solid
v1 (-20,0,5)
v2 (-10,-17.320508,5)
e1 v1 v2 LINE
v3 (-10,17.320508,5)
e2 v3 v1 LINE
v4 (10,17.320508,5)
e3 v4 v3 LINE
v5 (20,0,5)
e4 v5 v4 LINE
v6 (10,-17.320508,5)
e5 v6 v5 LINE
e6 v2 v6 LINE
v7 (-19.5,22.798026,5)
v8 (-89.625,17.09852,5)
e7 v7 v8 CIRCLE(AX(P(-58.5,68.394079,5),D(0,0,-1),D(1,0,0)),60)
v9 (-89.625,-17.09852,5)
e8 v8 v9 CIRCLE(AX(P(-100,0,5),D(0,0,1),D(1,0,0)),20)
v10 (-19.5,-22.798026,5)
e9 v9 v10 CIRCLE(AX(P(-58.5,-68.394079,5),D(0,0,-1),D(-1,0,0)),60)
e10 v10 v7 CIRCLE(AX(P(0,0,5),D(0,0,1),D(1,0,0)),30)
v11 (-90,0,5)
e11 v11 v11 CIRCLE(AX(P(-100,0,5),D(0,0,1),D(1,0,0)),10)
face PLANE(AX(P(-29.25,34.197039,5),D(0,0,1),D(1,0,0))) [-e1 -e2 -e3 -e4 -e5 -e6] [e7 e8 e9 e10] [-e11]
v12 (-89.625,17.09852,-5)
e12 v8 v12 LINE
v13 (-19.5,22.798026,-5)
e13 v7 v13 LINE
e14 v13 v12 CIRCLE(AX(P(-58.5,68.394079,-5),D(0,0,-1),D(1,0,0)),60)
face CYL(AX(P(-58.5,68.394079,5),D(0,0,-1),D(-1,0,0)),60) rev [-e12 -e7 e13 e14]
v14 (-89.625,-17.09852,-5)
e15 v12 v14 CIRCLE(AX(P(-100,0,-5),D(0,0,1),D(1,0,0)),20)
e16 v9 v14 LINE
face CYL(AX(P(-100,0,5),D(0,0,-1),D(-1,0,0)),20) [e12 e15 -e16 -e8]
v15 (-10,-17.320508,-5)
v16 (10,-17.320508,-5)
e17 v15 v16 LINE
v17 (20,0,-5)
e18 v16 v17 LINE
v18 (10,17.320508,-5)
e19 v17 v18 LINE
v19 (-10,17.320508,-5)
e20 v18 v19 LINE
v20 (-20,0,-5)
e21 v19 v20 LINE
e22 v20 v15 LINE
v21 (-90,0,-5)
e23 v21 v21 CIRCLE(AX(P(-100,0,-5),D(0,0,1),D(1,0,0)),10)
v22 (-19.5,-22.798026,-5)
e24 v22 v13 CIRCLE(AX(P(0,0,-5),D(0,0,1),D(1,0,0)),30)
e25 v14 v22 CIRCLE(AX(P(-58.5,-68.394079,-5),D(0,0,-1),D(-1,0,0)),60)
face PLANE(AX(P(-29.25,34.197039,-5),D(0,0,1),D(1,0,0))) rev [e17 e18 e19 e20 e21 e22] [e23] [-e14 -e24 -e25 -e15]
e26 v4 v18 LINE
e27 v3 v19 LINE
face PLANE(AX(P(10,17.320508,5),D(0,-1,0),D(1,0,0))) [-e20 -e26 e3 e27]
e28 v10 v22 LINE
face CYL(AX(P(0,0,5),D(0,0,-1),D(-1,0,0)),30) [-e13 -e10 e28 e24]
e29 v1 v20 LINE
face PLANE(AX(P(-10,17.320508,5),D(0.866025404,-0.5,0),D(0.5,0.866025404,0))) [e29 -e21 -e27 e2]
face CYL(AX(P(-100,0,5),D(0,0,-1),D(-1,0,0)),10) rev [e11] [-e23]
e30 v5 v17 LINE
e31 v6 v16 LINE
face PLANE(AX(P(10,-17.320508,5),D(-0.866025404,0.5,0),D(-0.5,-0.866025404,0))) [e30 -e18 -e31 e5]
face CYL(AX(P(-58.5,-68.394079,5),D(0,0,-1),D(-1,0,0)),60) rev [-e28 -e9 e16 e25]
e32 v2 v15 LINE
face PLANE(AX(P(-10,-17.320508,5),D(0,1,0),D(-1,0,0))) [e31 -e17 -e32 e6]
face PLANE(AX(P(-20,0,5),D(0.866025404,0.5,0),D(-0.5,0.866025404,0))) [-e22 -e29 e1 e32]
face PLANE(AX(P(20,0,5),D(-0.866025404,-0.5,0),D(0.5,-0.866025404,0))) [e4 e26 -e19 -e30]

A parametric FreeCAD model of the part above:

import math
import FreeCAD as App
import Part
import Sketcher
Q = App.Units.Quantity

doc = App.newDocument("Part")
body = doc.addObject("PartDesign::Body", "Body")

# Sketch on XY plane
sketch1 = doc.addObject("Sketcher::SketchObject", "Sketch")
body.addObject(sketch1)
sketch1.AttachmentSupport = (doc.XY_Plane, [""])
sketch1.MapMode = "FlatFace"
sketch1.addGeometry(Part.ArcOfCircle(Part.Circle(App.Vector(0, 0, 0), App.Vector(0, 0, 1), 30), math.radians(-130.541602), math.radians(130.541602)), False)
sketch1.addGeometry(Part.ArcOfCircle(Part.Circle(App.Vector(-58.5, 68.394079, 0), App.Vector(0, 0, 1), 60), math.radians(-121.248441), math.radians(-49.458398)), False)
sketch1.addGeometry(Part.ArcOfCircle(Part.Circle(App.Vector(-100, 0, 0), App.Vector(0, 0, 1), 20), math.radians(58.751559), math.radians(301.248441)), False)
sketch1.addGeometry(Part.ArcOfCircle(Part.Circle(App.Vector(-58.5, -68.394079, 0), App.Vector(0, 0, 1), 60), math.radians(49.458398), math.radians(121.248441)), False)
sketch1.addGeometry(Part.Circle(App.Vector(-100, 0, 0), App.Vector(0, 0, 1), 10), False)
sketch1.addGeometry(Part.LineSegment(App.Vector(-10, -17.320508, 0), App.Vector(-20, 0, 0)), False)
sketch1.addGeometry(Part.LineSegment(App.Vector(-20, 0, 0), App.Vector(-10, 17.320508, 0)), False)
sketch1.addGeometry(Part.LineSegment(App.Vector(-10, 17.320508, 0), App.Vector(10, 17.320508, 0)), False)
sketch1.addGeometry(Part.LineSegment(App.Vector(10, 17.320508, 0), App.Vector(20, 0, 0)), False)
sketch1.addGeometry(Part.LineSegment(App.Vector(20, 0, 0), App.Vector(10, -17.320508, 0)), False)
sketch1.addGeometry(Part.LineSegment(App.Vector(10, -17.320508, 0), App.Vector(-10, -17.320508, 0)), False)
sketch1.addConstraint(Sketcher.Constraint("Tangent", 0, 2, 1, 2))
sketch1.addConstraint(Sketcher.Constraint("Tangent", 1, 1, 2, 1))
sketch1.addConstraint(Sketcher.Constraint("Tangent", 2, 2, 3, 2))
sketch1.addConstraint(Sketcher.Constraint("Tangent", 3, 1, 0, 1))
sketch1.addConstraint(Sketcher.Constraint("Coincident", 5, 2, 6, 1))
sketch1.addConstraint(Sketcher.Constraint("Coincident", 6, 2, 7, 1))
sketch1.addConstraint(Sketcher.Constraint("Coincident", 7, 2, 8, 1))
sketch1.addConstraint(Sketcher.Constraint("Coincident", 8, 2, 9, 1))
sketch1.addConstraint(Sketcher.Constraint("Coincident", 9, 2, 10, 1))
sketch1.addConstraint(Sketcher.Constraint("Coincident", 10, 2, 5, 1))
sketch1.addConstraint(Sketcher.Constraint("Horizontal", 7))
sketch1.addConstraint(Sketcher.Constraint("Horizontal", 10))
sketch1.addConstraint(Sketcher.Constraint("Coincident", 0, 3, -1, 1))
sketch1.addConstraint(Sketcher.Constraint("Coincident", 4, 3, 2, 3))
sketch1.addConstraint(Sketcher.Constraint("Equal", 1, 3))
sketch1.addConstraint(Sketcher.Constraint("Symmetric", 5, 2, 8, 2, -1, 1))
sketch1.addConstraint(Sketcher.Constraint("Symmetric", 6, 2, 9, 2, -1, 1))
sketch1.addConstraint(Sketcher.Constraint("PointOnObject", 2, 3, -1))
sketch1.addConstraint(Sketcher.Constraint("PointOnObject", 5, 2, -1))
sketch1.addConstraint(Sketcher.Constraint("Parallel", 5, 8))
sketch1.addConstraint(Sketcher.Constraint("Vertical", 7, 2, 9, 2))
sketch1.addConstraint(Sketcher.Constraint("Diameter", 4, 20.0))
sketch1.addConstraint(Sketcher.Constraint("Radius", 0, 30.0))
sketch1.addConstraint(Sketcher.Constraint("Radius", 1, 60.0))
sketch1.addConstraint(Sketcher.Constraint("Radius", 2, 20.0))
sketch1.addConstraint(Sketcher.Constraint("DistanceX", 7, 1, 7, 2, 20.0))
sketch1.addConstraint(Sketcher.Constraint("Angle", 5, Q("120 deg")))
sketch1.addConstraint(Sketcher.Constraint("Distance", 5, 20.0))
sketch1.addConstraint(Sketcher.Constraint("DistanceX", 2, 3, -1, 1, 100.0))
pad1 = doc.addObject("PartDesign::Pad", "Pad")
body.addObject(pad1)
pad1.Profile = sketch1
pad1.Length = 10
pad1.Midplane = True

doc.recompute()
